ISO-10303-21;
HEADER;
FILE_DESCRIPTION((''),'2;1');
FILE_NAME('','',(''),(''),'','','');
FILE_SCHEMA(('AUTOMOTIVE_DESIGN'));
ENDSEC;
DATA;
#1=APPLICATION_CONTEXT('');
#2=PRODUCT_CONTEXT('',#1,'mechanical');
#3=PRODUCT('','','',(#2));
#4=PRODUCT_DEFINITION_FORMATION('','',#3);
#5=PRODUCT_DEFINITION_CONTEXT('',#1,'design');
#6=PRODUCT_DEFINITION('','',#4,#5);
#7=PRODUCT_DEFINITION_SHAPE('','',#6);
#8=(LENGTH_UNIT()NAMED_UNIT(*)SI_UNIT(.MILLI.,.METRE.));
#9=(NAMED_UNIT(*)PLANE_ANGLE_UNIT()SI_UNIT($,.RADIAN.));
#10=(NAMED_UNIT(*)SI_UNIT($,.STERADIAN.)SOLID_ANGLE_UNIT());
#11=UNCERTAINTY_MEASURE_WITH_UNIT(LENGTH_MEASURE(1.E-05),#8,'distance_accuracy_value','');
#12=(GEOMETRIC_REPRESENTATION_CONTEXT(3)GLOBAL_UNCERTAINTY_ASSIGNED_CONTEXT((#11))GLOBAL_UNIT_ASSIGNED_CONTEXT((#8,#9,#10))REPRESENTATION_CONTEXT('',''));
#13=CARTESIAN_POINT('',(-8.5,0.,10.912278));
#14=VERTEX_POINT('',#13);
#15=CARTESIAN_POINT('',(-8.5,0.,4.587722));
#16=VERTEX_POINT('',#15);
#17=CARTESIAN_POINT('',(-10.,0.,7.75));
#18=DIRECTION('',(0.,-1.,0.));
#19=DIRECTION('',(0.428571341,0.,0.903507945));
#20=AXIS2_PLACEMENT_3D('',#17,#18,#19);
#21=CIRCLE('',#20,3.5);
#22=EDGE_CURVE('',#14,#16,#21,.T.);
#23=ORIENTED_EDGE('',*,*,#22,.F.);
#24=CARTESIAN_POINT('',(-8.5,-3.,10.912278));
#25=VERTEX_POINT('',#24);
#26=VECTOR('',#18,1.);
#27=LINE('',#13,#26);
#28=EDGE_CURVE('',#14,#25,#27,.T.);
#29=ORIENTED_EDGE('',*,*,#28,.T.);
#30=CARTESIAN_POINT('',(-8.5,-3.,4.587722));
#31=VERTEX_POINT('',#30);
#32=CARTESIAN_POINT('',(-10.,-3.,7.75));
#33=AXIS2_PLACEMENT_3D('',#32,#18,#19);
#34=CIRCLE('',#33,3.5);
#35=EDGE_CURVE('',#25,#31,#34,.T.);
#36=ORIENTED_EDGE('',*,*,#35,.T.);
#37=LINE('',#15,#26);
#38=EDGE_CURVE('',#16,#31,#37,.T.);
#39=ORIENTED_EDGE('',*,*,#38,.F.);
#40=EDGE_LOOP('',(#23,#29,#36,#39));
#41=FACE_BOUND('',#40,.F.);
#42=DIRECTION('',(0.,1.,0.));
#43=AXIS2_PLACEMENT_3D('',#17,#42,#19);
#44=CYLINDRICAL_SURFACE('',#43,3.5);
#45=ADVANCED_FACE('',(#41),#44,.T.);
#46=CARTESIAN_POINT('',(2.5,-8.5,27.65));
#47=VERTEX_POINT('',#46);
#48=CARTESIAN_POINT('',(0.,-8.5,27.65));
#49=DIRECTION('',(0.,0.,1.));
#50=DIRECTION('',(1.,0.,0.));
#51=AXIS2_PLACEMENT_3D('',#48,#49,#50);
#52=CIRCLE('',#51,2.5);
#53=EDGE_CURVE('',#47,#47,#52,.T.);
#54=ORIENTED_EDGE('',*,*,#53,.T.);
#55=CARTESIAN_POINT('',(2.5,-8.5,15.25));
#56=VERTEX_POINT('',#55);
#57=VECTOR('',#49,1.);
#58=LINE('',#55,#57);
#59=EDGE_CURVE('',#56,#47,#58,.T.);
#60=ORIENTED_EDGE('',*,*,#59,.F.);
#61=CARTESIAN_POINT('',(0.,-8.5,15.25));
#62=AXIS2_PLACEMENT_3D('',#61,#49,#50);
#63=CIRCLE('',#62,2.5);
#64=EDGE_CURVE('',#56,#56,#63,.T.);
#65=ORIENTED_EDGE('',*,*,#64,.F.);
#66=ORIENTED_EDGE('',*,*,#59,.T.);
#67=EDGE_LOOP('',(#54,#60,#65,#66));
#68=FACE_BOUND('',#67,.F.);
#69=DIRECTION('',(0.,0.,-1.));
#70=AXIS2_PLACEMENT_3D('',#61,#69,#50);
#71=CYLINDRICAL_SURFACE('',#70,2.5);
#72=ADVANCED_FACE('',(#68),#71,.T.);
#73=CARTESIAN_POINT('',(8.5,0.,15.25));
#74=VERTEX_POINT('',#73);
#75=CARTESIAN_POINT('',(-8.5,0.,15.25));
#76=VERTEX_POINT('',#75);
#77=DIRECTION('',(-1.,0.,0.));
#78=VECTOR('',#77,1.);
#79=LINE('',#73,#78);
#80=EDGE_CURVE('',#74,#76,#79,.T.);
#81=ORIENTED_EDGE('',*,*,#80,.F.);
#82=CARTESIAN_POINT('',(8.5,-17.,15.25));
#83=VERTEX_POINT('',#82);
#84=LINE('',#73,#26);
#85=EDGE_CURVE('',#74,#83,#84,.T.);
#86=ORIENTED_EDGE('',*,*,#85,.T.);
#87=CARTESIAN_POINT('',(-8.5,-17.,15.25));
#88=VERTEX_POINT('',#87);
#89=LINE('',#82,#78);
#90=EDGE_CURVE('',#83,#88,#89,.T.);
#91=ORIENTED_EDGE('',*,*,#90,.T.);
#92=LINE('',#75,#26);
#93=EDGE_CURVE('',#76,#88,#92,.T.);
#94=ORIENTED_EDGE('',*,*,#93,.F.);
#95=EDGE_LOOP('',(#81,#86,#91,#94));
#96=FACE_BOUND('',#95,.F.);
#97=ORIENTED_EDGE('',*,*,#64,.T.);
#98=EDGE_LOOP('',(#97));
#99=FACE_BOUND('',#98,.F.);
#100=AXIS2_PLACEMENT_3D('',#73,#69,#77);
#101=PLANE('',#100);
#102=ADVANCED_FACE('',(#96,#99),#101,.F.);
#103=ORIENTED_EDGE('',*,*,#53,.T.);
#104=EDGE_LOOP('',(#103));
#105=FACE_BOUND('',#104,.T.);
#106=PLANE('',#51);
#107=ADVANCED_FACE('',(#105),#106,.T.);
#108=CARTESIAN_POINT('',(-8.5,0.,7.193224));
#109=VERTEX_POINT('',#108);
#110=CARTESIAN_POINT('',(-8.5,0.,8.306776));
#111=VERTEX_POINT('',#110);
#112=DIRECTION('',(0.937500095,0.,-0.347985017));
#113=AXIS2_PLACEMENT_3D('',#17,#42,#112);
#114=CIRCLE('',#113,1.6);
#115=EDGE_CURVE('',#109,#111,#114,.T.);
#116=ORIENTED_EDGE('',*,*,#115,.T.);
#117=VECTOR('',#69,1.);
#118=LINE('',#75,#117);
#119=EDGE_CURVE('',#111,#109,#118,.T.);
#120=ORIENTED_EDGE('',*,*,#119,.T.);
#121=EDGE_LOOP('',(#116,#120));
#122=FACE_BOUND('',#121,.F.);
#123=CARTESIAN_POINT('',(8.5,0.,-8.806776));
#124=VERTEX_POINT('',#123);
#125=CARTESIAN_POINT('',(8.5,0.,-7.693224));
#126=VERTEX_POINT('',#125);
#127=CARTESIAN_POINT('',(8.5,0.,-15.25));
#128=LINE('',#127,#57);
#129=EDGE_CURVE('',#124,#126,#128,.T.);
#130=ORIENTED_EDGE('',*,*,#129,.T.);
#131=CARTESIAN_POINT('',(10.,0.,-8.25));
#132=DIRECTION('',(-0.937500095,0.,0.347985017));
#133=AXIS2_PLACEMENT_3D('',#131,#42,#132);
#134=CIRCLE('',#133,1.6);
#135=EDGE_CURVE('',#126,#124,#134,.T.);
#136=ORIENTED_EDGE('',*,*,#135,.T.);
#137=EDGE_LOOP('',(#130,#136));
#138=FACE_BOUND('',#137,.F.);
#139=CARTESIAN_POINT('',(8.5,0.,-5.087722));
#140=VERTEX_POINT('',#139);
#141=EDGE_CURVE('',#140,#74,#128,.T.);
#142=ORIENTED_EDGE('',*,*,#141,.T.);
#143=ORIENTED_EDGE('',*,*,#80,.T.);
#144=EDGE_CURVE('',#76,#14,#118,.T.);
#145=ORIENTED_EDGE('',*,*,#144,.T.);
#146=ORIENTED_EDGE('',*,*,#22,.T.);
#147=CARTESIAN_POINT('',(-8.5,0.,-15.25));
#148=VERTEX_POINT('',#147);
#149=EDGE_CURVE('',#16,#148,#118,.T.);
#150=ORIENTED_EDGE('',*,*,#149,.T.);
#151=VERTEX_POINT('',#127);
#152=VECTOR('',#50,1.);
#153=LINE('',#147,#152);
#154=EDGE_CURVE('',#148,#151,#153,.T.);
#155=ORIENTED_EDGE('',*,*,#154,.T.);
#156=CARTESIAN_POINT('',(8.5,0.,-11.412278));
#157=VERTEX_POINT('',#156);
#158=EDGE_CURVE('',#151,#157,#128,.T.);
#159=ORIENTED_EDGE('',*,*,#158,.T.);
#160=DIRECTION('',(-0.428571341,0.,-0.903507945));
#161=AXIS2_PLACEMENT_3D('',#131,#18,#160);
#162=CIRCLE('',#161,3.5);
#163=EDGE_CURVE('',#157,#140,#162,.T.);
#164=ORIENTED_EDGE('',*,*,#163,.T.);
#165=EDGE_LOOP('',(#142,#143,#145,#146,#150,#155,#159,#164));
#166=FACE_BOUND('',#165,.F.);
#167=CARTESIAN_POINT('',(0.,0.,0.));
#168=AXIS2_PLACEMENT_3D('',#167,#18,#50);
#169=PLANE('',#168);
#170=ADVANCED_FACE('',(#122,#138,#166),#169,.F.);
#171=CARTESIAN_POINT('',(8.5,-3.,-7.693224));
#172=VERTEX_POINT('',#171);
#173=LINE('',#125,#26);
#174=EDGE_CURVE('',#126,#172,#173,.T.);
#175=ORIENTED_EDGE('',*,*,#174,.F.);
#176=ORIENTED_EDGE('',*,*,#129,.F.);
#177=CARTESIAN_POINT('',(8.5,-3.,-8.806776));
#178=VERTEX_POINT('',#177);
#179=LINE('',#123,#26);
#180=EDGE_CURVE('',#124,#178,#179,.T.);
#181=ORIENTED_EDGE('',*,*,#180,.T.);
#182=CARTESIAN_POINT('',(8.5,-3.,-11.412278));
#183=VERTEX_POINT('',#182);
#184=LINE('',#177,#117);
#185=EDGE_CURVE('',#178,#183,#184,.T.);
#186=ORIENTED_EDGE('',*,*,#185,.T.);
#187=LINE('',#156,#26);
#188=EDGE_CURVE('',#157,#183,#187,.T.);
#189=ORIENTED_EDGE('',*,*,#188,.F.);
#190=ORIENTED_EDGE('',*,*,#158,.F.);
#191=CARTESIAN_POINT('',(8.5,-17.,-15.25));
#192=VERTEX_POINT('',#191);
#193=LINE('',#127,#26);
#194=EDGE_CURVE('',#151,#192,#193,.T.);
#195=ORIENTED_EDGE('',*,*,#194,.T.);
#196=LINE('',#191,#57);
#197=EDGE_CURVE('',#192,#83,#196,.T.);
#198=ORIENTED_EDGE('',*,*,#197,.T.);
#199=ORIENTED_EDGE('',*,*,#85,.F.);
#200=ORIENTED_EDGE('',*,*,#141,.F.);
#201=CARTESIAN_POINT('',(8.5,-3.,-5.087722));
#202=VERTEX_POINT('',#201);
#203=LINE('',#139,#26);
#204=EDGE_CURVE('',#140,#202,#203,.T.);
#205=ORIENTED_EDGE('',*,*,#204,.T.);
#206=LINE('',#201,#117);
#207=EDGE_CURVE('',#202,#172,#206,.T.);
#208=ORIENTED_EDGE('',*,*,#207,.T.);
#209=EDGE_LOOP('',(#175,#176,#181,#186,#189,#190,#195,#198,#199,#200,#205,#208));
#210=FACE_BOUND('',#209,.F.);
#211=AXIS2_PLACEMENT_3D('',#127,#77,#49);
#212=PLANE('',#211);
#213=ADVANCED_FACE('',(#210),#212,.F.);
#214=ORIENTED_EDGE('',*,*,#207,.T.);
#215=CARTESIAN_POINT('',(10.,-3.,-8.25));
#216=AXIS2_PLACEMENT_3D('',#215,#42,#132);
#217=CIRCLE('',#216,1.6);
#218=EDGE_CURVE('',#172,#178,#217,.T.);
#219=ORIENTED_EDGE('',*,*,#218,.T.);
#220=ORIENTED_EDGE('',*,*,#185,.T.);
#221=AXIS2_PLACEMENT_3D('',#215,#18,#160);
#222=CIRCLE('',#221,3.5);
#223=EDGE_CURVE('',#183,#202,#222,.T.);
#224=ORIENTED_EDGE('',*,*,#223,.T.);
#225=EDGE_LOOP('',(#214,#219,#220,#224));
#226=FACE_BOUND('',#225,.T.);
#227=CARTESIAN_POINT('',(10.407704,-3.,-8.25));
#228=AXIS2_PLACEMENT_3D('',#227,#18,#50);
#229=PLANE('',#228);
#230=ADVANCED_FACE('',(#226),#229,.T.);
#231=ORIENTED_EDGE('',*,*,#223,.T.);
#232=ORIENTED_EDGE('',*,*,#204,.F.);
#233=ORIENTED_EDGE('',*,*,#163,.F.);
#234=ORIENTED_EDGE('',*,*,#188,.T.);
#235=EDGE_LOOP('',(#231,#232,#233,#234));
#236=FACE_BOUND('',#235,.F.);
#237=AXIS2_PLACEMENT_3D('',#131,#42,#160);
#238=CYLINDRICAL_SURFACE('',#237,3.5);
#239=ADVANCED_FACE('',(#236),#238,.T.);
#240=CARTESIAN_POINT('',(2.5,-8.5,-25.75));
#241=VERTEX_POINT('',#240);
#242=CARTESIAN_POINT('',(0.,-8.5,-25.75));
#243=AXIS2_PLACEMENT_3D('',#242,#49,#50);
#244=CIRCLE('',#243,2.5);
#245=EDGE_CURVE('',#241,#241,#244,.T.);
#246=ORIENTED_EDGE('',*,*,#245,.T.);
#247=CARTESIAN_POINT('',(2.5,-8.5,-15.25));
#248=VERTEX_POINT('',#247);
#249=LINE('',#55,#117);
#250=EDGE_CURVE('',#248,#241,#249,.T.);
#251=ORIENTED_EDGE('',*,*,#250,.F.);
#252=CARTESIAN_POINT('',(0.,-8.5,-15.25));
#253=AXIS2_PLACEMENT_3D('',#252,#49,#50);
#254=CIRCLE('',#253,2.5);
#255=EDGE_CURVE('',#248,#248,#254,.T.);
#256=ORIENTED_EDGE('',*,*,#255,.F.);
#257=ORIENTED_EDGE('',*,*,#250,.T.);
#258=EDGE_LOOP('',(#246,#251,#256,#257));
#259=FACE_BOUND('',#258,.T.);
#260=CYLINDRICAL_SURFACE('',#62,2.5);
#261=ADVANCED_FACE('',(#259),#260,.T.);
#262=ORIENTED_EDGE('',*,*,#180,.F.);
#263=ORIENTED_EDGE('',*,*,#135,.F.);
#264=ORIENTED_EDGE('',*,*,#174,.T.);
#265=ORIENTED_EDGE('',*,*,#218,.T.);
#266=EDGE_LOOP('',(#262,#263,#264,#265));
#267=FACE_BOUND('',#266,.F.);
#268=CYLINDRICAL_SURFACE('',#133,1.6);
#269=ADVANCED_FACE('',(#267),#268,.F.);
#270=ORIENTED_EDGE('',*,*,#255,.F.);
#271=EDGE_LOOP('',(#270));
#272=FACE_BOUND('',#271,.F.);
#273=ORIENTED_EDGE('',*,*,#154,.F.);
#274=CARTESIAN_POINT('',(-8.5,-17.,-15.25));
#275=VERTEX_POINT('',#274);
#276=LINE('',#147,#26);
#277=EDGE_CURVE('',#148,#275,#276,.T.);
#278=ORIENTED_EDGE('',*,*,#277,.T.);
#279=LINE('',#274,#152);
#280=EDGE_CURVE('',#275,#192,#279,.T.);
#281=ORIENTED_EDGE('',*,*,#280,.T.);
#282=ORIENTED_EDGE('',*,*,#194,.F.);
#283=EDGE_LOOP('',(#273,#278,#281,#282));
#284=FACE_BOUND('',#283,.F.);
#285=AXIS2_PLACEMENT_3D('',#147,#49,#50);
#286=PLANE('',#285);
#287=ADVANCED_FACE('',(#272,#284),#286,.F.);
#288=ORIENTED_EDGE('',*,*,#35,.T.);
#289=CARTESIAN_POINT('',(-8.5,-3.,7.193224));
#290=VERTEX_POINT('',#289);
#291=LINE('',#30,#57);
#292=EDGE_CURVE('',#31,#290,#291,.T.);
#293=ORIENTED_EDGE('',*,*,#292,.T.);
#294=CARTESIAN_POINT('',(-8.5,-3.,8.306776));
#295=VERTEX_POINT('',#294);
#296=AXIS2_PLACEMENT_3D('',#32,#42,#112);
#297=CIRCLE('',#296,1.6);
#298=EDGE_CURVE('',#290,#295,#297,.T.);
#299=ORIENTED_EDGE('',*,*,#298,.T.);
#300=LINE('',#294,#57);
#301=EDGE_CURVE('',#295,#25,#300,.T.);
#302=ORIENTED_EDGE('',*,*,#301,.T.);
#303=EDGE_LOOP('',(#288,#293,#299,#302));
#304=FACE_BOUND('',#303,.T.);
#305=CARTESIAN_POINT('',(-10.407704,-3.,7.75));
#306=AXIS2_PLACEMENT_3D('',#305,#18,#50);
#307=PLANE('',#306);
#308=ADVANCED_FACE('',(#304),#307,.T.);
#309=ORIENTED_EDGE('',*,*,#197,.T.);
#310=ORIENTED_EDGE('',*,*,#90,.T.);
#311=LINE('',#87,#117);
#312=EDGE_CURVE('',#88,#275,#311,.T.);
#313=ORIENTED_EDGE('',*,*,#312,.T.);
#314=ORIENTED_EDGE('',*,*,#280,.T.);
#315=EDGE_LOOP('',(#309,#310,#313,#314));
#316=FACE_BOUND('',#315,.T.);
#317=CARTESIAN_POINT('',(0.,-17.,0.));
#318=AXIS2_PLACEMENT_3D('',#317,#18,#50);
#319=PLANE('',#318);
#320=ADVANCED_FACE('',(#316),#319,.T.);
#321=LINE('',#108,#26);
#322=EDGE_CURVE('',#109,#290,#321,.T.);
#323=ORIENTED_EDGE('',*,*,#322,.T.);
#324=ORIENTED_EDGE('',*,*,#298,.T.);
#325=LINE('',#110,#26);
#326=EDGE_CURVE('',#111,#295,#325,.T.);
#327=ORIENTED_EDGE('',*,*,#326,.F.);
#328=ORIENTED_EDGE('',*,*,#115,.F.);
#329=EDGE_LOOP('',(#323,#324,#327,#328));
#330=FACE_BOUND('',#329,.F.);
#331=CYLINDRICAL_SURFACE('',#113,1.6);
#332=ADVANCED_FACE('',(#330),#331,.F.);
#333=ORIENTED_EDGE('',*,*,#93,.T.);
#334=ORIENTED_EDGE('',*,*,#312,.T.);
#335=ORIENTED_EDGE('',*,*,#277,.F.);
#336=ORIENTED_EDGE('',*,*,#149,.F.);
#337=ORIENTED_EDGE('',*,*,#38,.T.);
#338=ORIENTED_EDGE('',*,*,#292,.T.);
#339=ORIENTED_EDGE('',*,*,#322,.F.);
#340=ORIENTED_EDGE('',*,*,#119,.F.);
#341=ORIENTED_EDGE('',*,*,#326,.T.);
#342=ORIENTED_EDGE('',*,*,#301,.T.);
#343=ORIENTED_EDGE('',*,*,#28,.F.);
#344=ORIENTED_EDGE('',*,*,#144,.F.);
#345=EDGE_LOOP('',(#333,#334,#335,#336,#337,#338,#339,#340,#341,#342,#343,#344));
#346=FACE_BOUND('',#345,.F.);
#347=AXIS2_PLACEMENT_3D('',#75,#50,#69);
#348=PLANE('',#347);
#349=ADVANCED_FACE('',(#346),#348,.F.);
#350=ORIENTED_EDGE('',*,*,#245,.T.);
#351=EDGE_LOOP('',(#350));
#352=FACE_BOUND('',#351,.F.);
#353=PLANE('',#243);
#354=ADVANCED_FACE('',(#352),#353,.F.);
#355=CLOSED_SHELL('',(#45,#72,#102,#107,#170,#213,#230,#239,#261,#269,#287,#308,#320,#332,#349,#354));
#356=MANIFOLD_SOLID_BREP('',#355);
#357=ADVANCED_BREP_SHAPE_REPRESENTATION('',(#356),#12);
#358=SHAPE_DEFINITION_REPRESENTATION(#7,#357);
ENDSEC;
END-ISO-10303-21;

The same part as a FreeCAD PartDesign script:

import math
import FreeCAD as App
import Part
import Sketcher

doc = App.newDocument("Part")
body = doc.addObject("PartDesign::Body", "Body")

# Sketch on XZ plane
sketch1 = doc.addObject("Sketcher::SketchObject", "Sketch")
body.addObject(sketch1)
sketch1.AttachmentSupport = (doc.XZ_Plane, [""])
sketch1.MapMode = "FlatFace"
sketch1.addGeometry([
    Part.LineSegment(App.Vector(8, 15, 0), App.Vector(-8, 15, 0)),
    Part.LineSegment(App.Vector(-8, 15, 0), App.Vector(-8, -15, 0)),
    Part.LineSegment(App.Vector(-8, -15, 0), App.Vector(8, -15, 0)),
    Part.LineSegment(App.Vector(8, -15, 0), App.Vector(8, 15, 0)),
], False)
sketch1.addConstraint([
    Sketcher.Constraint("Coincident", 0, 2, 1, 1),
    Sketcher.Constraint("Coincident", 1, 2, 2, 1),
    Sketcher.Constraint("Coincident", 2, 2, 3, 1),
    Sketcher.Constraint("Coincident", 3, 2, 0, 1),
    Sketcher.Constraint("Horizontal", 0),
    Sketcher.Constraint("Vertical", 1),
    Sketcher.Constraint("Horizontal", 2),
    Sketcher.Constraint("Vertical", 3),
    Sketcher.Constraint("Symmetric", 0, 2, 2, 2, -1, 1),
    Sketcher.Constraint("DistanceX", 0, 2, 0, 1, 17.0),
    Sketcher.Constraint("DistanceY", 1, 2, 1, 1, 30.5),
])
pad1 = doc.addObject("PartDesign::Pad", "Pad")
body.addObject(pad1)
pad1.Profile = sketch1
pad1.Length = 17

# Sketch on XZ plane
sketch2 = doc.addObject("Sketcher::SketchObject", "Sketch001")
body.addObject(sketch2)
sketch2.AttachmentSupport = (doc.XZ_Plane, [""])
sketch2.MapMode = "FlatFace"
sketch2.addGeometry([
    Part.LineSegment(App.Vector(-8.5, 8.3, 0), App.Vector(-8.5, 10.9, 0)),  # 0
    Part.ArcOfCircle(Part.Circle(App.Vector(-10, 7.8, 0), App.Vector(0, 0, 1), 3.5), math.radians(65), math.radians(295)),  # 1
    Part.LineSegment(App.Vector(-8.5, 4.6, 0), App.Vector(-8.5, 7.2, 0)),  # 2
    Part.ArcOfCircle(Part.Circle(App.Vector(-10, 7.8, 0), App.Vector(0, 0, 1), 1.6), math.radians(20), math.radians(340)),  # 3
    Part.ArcOfCircle(Part.Circle(App.Vector(10, -8.2, 0), App.Vector(0, 0, 1), 3.5), math.radians(-115), math.radians(115)),  # 4
    Part.LineSegment(App.Vector(8.5, -5.1, 0), App.Vector(8.5, -7.7, 0)),  # 5
    Part.ArcOfCircle(Part.Circle(App.Vector(10, -8.2, 0), App.Vector(0, 0, 1), 1.6), math.radians(-160), math.radians(160)),  # 6
    Part.LineSegment(App.Vector(8.5, -8.8, 0), App.Vector(8.5, -11.4, 0)),  # 7
], False)
sketch2.addConstraint([
    Sketcher.Constraint("Coincident", 0, 2, 1, 1),
    Sketcher.Constraint("Coincident", 1, 2, 2, 1),
    Sketcher.Constraint("Coincident", 2, 2, 3, 2),
    Sketcher.Constraint("Coincident", 3, 1, 0, 1),
    Sketcher.Constraint("Coincident", 4, 2, 5, 1),
    Sketcher.Constraint("Coincident", 5, 2, 6, 2),
    Sketcher.Constraint("Coincident", 6, 1, 7, 1),
    Sketcher.Constraint("Coincident", 7, 2, 4, 1),
    Sketcher.Constraint("Vertical", 0),
    Sketcher.Constraint("Vertical", 2),
    Sketcher.Constraint("Vertical", 5),
    Sketcher.Constraint("Vertical", 7),
    Sketcher.Constraint("Coincident", 3, 3, 1, 3),
    Sketcher.Constraint("Coincident", 6, 3, 4, 3),
    Sketcher.Constraint("Equal", 1, 4),
    Sketcher.Constraint("Equal", 3, 6),
    Sketcher.Constraint("Vertical", 0, 2, 1, 2),
    Sketcher.Constraint("Vertical", 5, 2, 6, 1),
    Sketcher.Constraint("Equal", 2, 5),
    Sketcher.Constraint("Radius", 1, 3.5),
    Sketcher.Constraint("Radius", 3, 1.6),
    Sketcher.Constraint("DistanceX", 1, 3, -1, 1, 10.0),
    Sketcher.Constraint("DistanceX", -1, 1, 4, 3, 10.0),
    Sketcher.Constraint("DistanceY", 4, 3, 1, 3, 16.0),
    Sketcher.Constraint("DistanceX", 1, 2, 4, 2, 17.0),
    Sketcher.Constraint("DistanceY", -1, 1, 1, 3, 7.75),
])
pad2 = doc.addObject("PartDesign::Pad", "Pad001")
body.addObject(pad2)
pad2.Profile = sketch2
pad2.Length = 3

# Sketch on XY plane
sketch3 = doc.addObject("Sketcher::SketchObject", "Sketch002")
body.addObject(sketch3)
sketch3.AttachmentSupport = (doc.XY_Plane, [""])
sketch3.MapMode = "FlatFace"
sketch3.AttachmentOffset = App.Placement(App.Vector(0, 0, 15.25), App.Rotation())
sketch3.addGeometry(Part.Circle(App.Vector(0, -8.5, 0), App.Vector(0, 0, 1), 2.5), False)
sketch3.addConstraint([
    Sketcher.Constraint("PointOnObject", 0, 3, -2),
    Sketcher.Constraint("Diameter", 0, 5.0),
    Sketcher.Constraint("DistanceY", 0, 3, -1, 1, 8.5),
])
pad3 = doc.addObject("PartDesign::Pad", "Pad002")
body.addObject(pad3)
pad3.Profile = sketch3
pad3.Length = 12.4

# Sketch on XY plane
sketch4 = doc.addObject("Sketcher::SketchObject", "Sketch003")
body.addObject(sketch4)
sketch4.AttachmentSupport = (doc.XY_Plane, [""])
sketch4.MapMode = "FlatFace"
sketch4.AttachmentOffset = App.Placement(App.Vector(0, 0, 15.25), App.Rotation())
sketch4.addGeometry(Part.Circle(App.Vector(0, -8.5, 0), App.Vector(0, 0, 1), 2.5), False)
sketch4.addConstraint([
    Sketcher.Constraint("PointOnObject", 0, 3, -2),
    Sketcher.Constraint("Diameter", 0, 5.0),
    Sketcher.Constraint("DistanceY", 0, 3, -1, 1, 8.5),
])
pad4 = doc.addObject("PartDesign::Pad", "Pad003")
body.addObject(pad4)
pad4.Profile = sketch4
pad4.Length = 41
pad4.Reversed = True

doc.recompute()
